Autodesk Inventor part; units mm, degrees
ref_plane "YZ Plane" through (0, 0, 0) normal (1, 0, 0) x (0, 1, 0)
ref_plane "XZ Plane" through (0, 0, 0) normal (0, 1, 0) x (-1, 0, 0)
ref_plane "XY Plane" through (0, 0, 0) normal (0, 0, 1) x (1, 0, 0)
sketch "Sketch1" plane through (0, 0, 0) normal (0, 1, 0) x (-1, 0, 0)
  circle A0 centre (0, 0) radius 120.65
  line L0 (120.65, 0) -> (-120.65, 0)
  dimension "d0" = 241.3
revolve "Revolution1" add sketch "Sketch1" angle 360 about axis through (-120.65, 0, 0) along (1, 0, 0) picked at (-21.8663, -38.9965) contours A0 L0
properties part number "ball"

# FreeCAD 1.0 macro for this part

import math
import FreeCAD as App
import Part
import Sketcher

V = App.Vector
Q = App.Units.Quantity

doc = App.newDocument("Part")
body = doc.addObject("PartDesign::Body", "Body")

sketch1 = doc.addObject("Sketcher::SketchObject", "Sketch")
body.addObject(sketch1)
sketch1.AttachmentSupport = (doc.XZ_Plane, [""])
sketch1.MapMode = "FlatFace"
sketch1.addGeometry([
    Part.ArcOfCircle(Part.Circle(V(0, 0, 0), V(0, 0, 1), 121), math.radians(180), math.radians(360)),
    Part.LineSegment(V(-121, 0, 0), V(121, 0, 0)),
], False)
sketch1.addConstraint([
    Sketcher.Constraint("Coincident", 0, 1, 1, 1),
    Sketcher.Constraint("Coincident", 1, 2, 0, 2),
    Sketcher.Constraint("Horizontal", 1),
    Sketcher.Constraint("Coincident", 0, 3, -1, 1),
    Sketcher.Constraint("PointOnObject", 0, 1, -1),
    Sketcher.Constraint("Radius", 0, Q("4.75 in")),
])
revolution = doc.addObject("PartDesign::Revolution", "Revolution")
body.addObject(revolution)
revolution.Profile = sketch1
revolution.ReferenceAxis = (sketch1, ["H_Axis"])
revolution.Angle = 360

doc.recompute()
